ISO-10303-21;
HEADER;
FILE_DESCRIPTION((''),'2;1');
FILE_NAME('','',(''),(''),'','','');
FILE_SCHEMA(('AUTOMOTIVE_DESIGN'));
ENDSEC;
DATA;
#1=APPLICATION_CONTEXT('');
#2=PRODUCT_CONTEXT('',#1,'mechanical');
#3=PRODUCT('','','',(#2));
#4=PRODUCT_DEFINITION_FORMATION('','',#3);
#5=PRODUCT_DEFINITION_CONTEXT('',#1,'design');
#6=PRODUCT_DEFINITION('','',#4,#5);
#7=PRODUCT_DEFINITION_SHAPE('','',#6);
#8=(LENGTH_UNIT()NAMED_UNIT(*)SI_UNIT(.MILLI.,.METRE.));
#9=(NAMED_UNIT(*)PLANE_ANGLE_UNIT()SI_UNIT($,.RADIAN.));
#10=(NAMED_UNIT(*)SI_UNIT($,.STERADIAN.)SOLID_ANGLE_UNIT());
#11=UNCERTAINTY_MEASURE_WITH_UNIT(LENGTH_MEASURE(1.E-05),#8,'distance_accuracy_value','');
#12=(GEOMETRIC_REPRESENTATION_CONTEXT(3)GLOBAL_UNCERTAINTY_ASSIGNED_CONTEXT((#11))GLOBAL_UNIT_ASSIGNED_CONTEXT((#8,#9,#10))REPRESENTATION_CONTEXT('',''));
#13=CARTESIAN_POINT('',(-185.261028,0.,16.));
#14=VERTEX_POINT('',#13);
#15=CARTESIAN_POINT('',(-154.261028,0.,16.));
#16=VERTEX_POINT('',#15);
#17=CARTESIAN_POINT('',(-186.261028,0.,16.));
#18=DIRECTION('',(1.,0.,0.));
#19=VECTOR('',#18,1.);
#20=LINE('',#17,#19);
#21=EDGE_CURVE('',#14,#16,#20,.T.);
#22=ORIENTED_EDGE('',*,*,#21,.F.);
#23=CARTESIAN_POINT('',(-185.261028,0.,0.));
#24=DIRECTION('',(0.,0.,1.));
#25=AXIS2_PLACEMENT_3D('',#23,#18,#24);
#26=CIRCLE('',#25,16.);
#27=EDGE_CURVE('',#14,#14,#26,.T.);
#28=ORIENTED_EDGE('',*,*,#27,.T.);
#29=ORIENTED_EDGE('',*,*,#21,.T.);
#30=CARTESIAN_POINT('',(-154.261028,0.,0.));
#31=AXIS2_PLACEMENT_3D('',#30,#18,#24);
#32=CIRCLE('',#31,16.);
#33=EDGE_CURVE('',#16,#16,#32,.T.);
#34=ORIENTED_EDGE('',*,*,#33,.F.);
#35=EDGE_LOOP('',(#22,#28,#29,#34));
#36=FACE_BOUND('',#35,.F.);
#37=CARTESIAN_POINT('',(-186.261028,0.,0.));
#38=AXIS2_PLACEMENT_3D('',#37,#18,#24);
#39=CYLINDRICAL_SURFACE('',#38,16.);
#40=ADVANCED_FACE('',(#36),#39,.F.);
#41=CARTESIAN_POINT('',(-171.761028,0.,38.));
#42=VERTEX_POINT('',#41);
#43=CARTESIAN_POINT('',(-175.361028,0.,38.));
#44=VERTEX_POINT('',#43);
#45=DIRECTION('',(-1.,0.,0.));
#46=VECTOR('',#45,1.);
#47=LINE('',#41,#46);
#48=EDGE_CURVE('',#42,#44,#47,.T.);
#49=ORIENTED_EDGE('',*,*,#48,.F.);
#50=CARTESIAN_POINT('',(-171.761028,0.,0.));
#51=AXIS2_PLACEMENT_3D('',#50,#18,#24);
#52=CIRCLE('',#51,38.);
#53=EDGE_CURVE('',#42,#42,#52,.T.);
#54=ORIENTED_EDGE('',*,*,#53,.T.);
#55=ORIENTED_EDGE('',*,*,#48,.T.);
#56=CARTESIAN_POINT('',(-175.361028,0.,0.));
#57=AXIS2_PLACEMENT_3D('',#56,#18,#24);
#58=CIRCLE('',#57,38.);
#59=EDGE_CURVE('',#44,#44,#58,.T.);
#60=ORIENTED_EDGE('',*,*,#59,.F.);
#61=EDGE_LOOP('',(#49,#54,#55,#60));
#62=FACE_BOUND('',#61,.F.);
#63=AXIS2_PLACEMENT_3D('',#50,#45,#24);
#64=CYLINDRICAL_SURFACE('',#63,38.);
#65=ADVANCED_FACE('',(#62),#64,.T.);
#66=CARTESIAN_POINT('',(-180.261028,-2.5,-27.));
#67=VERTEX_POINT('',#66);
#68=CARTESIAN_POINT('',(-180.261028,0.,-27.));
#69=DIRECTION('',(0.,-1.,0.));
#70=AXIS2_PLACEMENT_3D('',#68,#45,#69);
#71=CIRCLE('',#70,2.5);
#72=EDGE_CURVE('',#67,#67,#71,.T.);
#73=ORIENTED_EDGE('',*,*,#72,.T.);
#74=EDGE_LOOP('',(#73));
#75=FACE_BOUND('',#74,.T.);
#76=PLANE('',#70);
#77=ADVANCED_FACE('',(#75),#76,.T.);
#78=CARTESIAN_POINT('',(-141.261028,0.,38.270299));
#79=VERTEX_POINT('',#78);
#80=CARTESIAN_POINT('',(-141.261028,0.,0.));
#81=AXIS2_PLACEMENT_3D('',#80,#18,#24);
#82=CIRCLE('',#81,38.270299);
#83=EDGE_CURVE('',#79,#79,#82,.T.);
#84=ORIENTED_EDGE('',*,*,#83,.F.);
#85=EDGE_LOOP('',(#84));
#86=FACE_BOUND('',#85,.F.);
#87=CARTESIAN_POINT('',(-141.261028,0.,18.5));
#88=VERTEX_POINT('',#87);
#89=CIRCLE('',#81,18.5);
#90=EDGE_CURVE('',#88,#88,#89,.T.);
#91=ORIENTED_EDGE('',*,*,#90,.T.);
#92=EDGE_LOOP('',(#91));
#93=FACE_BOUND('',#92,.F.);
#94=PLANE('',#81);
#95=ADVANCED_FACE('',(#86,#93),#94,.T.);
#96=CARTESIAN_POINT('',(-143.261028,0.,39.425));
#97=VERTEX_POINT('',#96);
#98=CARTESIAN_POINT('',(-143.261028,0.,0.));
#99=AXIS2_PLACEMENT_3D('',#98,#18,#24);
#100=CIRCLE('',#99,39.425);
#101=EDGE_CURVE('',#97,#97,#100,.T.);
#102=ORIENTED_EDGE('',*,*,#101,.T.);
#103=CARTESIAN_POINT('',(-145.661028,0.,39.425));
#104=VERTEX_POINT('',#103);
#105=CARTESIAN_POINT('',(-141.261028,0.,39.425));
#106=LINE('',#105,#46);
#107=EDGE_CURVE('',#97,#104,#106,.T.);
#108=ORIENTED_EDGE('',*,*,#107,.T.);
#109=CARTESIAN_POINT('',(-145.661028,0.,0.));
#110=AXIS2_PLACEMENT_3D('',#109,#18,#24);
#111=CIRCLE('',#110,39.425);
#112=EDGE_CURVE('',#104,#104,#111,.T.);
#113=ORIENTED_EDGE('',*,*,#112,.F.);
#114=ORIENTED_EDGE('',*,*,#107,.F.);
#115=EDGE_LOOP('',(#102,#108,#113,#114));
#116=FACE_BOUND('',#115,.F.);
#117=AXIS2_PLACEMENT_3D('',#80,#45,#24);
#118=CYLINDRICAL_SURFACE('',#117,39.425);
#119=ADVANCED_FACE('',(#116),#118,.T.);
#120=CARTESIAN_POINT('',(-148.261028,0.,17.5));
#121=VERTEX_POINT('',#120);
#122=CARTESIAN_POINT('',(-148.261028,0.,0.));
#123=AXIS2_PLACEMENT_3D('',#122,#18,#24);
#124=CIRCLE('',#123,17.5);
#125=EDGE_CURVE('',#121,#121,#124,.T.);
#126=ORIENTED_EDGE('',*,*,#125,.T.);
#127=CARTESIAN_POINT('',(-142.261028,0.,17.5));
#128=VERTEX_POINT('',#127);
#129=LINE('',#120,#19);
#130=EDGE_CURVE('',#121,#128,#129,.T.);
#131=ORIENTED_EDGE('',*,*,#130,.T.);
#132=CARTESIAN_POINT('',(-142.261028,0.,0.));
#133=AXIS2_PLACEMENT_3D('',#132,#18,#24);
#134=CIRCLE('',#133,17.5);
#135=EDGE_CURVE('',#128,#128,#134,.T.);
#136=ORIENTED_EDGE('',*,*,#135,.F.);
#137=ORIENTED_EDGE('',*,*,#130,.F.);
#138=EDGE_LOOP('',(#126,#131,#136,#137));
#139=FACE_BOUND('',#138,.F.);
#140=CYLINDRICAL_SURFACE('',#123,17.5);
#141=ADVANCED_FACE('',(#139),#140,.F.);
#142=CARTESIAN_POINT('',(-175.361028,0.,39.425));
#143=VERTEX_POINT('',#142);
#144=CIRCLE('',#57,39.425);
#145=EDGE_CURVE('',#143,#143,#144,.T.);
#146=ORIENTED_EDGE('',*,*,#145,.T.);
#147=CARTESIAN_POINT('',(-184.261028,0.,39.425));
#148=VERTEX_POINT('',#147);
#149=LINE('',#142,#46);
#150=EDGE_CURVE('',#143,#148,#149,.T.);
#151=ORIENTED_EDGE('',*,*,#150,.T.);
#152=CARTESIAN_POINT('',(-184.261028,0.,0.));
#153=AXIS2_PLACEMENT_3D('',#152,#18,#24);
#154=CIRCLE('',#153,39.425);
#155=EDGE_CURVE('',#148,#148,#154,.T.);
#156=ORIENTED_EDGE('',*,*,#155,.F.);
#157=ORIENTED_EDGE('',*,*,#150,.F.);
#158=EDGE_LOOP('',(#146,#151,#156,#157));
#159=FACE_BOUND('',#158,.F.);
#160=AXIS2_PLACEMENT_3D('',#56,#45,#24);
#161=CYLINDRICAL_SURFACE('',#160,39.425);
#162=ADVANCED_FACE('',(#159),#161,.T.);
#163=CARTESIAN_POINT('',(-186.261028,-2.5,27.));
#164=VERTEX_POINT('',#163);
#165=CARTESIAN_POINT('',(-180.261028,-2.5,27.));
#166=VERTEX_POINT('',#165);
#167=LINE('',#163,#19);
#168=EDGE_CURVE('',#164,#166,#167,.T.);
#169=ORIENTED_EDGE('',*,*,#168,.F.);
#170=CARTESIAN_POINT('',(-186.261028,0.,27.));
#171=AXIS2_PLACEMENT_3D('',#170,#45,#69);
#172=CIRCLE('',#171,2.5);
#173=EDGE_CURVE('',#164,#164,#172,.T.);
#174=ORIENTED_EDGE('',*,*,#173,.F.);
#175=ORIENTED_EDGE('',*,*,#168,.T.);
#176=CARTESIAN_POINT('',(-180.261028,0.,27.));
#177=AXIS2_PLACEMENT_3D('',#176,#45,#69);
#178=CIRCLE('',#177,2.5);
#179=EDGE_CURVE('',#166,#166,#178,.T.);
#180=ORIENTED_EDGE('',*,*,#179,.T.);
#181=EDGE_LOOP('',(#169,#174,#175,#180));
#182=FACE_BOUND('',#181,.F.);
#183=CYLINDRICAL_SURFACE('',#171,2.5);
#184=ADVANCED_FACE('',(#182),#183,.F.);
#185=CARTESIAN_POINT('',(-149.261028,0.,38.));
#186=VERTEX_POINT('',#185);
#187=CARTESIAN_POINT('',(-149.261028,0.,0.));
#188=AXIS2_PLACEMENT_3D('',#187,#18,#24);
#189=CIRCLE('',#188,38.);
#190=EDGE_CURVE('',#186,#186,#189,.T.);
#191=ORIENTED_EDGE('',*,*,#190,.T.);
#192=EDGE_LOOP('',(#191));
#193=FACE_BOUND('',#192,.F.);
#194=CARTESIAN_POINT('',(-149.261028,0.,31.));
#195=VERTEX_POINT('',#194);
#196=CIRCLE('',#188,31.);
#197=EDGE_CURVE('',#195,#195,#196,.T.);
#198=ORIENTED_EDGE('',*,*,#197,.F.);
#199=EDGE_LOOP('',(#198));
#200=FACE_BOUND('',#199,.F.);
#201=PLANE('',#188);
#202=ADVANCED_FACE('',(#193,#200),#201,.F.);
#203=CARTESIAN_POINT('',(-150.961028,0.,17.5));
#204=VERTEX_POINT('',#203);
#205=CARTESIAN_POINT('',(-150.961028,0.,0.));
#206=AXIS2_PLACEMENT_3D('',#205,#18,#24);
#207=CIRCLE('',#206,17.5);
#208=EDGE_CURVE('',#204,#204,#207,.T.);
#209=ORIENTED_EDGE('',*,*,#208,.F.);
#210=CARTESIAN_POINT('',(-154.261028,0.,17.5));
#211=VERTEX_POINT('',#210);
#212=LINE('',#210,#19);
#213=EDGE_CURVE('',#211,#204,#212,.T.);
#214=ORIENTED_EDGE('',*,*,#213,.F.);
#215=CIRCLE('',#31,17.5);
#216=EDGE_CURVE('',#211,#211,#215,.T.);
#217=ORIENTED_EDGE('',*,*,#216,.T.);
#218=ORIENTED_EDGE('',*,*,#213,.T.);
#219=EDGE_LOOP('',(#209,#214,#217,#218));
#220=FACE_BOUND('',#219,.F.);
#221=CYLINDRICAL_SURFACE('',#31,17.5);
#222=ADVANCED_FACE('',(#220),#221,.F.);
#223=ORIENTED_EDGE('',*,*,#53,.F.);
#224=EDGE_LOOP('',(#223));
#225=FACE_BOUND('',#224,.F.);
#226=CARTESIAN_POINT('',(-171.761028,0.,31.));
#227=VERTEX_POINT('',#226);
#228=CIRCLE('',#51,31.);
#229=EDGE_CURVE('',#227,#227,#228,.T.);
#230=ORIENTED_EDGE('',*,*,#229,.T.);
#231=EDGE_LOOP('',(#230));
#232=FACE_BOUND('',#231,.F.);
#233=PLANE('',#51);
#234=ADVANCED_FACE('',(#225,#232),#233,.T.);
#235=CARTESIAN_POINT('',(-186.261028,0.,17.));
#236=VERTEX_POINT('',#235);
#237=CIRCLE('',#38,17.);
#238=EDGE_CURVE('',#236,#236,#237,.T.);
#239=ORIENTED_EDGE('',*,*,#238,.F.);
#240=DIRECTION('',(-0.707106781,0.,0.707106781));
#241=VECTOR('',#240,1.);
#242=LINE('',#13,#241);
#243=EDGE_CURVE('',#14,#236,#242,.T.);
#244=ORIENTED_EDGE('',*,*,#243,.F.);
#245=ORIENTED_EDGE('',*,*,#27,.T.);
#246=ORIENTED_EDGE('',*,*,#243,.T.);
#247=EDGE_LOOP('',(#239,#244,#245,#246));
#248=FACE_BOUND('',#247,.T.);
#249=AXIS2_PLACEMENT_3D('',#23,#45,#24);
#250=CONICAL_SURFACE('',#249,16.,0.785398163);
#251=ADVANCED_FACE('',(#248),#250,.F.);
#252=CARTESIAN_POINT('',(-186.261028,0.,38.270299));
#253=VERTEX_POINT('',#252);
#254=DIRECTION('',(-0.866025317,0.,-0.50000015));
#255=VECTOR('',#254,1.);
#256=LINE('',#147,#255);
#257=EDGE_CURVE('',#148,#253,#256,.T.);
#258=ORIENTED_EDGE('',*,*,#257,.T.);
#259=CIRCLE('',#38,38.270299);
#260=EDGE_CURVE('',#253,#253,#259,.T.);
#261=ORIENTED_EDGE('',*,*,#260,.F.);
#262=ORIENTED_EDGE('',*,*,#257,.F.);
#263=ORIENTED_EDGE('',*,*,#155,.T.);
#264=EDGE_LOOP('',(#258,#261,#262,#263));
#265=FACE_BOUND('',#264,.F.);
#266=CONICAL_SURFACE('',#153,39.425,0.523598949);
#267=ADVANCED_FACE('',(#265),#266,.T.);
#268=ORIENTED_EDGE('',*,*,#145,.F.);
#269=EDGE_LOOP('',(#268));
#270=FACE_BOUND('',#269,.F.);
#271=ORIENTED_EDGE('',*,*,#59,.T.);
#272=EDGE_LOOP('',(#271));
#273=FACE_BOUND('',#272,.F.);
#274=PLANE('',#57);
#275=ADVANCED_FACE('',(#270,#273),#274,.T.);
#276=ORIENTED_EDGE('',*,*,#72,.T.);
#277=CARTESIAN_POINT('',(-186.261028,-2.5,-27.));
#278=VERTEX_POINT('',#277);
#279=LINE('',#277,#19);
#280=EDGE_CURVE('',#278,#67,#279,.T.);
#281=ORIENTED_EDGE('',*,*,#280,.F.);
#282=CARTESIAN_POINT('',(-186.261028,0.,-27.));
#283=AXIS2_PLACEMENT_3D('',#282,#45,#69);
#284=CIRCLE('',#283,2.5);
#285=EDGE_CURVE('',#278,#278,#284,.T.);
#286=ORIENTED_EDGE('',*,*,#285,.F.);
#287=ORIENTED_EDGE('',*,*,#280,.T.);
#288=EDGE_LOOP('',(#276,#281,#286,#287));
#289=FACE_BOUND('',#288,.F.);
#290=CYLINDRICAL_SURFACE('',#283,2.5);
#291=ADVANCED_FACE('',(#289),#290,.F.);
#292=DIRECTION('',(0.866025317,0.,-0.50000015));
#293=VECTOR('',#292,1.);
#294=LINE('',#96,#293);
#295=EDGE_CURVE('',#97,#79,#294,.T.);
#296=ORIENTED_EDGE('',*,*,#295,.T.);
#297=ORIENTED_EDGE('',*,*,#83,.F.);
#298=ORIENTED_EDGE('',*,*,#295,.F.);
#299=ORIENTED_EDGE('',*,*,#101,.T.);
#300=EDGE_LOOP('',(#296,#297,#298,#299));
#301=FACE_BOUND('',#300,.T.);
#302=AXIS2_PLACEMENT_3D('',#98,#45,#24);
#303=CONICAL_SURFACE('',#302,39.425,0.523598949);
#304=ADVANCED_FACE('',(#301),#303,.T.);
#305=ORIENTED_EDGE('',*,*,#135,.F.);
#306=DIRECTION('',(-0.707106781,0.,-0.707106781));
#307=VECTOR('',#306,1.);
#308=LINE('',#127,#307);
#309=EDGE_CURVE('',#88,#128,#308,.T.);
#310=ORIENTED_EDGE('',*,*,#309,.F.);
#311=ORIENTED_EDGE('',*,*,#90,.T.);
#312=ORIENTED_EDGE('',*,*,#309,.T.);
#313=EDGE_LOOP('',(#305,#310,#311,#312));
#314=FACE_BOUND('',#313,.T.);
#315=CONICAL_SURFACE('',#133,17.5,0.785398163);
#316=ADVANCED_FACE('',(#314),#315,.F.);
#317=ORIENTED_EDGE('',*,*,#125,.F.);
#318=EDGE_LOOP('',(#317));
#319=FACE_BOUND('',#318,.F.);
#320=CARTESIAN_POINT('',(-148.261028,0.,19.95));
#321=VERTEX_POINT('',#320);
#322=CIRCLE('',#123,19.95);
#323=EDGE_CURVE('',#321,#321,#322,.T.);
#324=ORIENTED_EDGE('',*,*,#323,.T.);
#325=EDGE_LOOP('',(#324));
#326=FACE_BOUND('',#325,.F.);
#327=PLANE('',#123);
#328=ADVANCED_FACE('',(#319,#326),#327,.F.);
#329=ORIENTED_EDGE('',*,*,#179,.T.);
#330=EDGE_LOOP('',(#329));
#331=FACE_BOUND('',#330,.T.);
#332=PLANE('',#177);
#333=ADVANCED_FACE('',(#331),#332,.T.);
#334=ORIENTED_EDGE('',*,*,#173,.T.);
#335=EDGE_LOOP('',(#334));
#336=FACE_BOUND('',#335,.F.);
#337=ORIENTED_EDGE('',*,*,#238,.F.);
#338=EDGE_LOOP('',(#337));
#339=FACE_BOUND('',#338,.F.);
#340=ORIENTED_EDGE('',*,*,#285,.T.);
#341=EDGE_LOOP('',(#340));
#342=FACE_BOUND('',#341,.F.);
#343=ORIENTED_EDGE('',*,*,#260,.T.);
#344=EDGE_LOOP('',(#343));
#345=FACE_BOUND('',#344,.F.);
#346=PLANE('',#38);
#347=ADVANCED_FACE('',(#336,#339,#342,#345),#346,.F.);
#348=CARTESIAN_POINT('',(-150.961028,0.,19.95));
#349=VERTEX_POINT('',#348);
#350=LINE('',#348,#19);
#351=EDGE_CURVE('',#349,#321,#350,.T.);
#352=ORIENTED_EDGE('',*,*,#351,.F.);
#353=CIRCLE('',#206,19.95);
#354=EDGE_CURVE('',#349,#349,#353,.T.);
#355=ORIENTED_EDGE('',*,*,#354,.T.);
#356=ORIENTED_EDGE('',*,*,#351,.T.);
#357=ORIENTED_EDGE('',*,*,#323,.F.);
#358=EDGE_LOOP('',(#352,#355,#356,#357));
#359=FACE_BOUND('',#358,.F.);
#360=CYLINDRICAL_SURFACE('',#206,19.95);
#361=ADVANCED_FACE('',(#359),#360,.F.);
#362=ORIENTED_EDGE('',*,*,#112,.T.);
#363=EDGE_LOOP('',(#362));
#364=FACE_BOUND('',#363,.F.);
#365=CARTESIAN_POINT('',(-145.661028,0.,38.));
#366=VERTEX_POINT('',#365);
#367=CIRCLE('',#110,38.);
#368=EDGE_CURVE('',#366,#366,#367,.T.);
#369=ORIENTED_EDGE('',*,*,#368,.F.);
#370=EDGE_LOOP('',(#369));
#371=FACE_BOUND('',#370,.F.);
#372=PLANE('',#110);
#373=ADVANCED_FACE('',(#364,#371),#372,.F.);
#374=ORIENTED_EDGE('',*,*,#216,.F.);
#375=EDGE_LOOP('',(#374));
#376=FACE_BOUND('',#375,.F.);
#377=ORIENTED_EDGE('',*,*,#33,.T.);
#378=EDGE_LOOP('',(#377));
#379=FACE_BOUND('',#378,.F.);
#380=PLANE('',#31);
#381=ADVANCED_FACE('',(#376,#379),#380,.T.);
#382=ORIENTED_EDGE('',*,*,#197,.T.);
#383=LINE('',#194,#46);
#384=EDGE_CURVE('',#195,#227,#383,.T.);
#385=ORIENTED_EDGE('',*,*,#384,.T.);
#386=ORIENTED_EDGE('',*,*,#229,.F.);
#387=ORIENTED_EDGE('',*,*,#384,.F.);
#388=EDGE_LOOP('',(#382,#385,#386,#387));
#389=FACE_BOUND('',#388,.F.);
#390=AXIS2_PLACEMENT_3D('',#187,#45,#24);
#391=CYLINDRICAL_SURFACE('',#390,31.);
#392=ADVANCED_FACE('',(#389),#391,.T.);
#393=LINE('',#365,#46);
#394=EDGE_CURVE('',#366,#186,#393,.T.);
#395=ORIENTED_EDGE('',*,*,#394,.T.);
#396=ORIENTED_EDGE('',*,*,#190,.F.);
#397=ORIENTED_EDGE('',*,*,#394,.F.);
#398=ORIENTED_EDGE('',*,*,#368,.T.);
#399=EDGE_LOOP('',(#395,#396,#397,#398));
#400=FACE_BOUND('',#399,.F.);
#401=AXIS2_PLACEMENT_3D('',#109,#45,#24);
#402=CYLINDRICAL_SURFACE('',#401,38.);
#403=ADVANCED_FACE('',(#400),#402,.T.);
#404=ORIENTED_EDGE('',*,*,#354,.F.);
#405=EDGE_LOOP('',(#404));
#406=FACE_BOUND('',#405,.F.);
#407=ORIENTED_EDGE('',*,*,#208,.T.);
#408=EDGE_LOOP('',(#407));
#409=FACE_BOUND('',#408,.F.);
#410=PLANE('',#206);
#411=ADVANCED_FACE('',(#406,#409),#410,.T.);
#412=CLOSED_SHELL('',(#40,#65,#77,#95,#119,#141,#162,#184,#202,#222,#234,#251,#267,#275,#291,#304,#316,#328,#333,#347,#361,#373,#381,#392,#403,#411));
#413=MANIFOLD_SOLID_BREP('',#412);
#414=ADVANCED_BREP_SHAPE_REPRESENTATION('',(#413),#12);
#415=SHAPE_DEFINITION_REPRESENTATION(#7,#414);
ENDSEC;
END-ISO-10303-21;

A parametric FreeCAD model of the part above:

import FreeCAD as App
import Part
import Sketcher
Q = App.Units.Quantity


def edges_at(feature, points):
    """Names of the edges that pass closest to the given points."""
    edges = feature.Shape.Edges
    near = lambda p: min(range(len(edges)), key=lambda i: edges[i].distToShape(Part.Vertex(*p))[0])
    return sorted({f"Edge{near(p) + 1}" for p in points})

doc = App.newDocument("Part")
body = doc.addObject("PartDesign::Body", "Body")

# Sketch on XZ plane
sketch1 = body.newObject("Sketcher::SketchObject", "Sketch")
sketch1.AttachmentSupport = (doc.getObject("XZ_Plane"), [""])
sketch1.MapMode = "FlatFace"
sketch1.addGeometry([
    Part.LineSegment(App.Vector(-148.3, 17.5, 0), App.Vector(-141.3, 17.5, 0)),  # 0
    Part.LineSegment(App.Vector(-141.3, 17.5, 0), App.Vector(-141.3, 39.4, 0)),  # 1
    Part.LineSegment(App.Vector(-141.3, 39.4, 0), App.Vector(-145.7, 39.4, 0)),  # 2
    Part.LineSegment(App.Vector(-145.7, 39.4, 0), App.Vector(-145.7, 38, 0)),  # 3
    Part.LineSegment(App.Vector(-145.7, 38, 0), App.Vector(-149.3, 38, 0)),  # 4
    Part.LineSegment(App.Vector(-149.3, 38, 0), App.Vector(-149.3, 31, 0)),  # 5
    Part.LineSegment(App.Vector(-149.3, 31, 0), App.Vector(-171.8, 31, 0)),  # 6
    Part.LineSegment(App.Vector(-171.8, 31, 0), App.Vector(-171.8, 38, 0)),  # 7
    Part.LineSegment(App.Vector(-171.8, 38, 0), App.Vector(-175.4, 38, 0)),  # 8
    Part.LineSegment(App.Vector(-175.4, 38, 0), App.Vector(-175.4, 39.4, 0)),  # 9
    Part.LineSegment(App.Vector(-175.4, 39.4, 0), App.Vector(-186.3, 39.4, 0)),  # 10
    Part.LineSegment(App.Vector(-186.3, 39.4, 0), App.Vector(-186.3, 16, 0)),  # 11
    Part.LineSegment(App.Vector(-186.3, 16, 0), App.Vector(-154.3, 16, 0)),  # 12
    Part.LineSegment(App.Vector(-154.3, 16, 0), App.Vector(-154.3, 17.5, 0)),  # 13
    Part.LineSegment(App.Vector(-154.3, 17.5, 0), App.Vector(-151, 17.5, 0)),  # 14
    Part.LineSegment(App.Vector(-151, 17.5, 0), App.Vector(-151, 19.9, 0)),  # 15
    Part.LineSegment(App.Vector(-151, 19.9, 0), App.Vector(-148.3, 19.9, 0)),  # 16
    Part.LineSegment(App.Vector(-148.3, 19.9, 0), App.Vector(-148.3, 17.5, 0)),  # 17
], False)
sketch1.addConstraint([
    Sketcher.Constraint("Coincident", 0, 2, 1, 1),
    Sketcher.Constraint("Coincident", 1, 2, 2, 1),
    Sketcher.Constraint("Coincident", 2, 2, 3, 1),
    Sketcher.Constraint("Coincident", 3, 2, 4, 1),
    Sketcher.Constraint("Coincident", 4, 2, 5, 1),
    Sketcher.Constraint("Coincident", 5, 2, 6, 1),
    Sketcher.Constraint("Coincident", 6, 2, 7, 1),
    Sketcher.Constraint("Coincident", 7, 2, 8, 1),
    Sketcher.Constraint("Coincident", 8, 2, 9, 1),
    Sketcher.Constraint("Coincident", 9, 2, 10, 1),
    Sketcher.Constraint("Coincident", 10, 2, 11, 1),
    Sketcher.Constraint("Coincident", 11, 2, 12, 1),
    Sketcher.Constraint("Coincident", 12, 2, 13, 1),
    Sketcher.Constraint("Coincident", 13, 2, 14, 1),
    Sketcher.Constraint("Coincident", 14, 2, 15, 1),
    Sketcher.Constraint("Coincident", 15, 2, 16, 1),
    Sketcher.Constraint("Coincident", 16, 2, 17, 1),
    Sketcher.Constraint("Coincident", 17, 2, 0, 1),
    Sketcher.Constraint("Horizontal", 0),
    Sketcher.Constraint("Vertical", 1),
    Sketcher.Constraint("Horizontal", 2),
    Sketcher.Constraint("Vertical", 3),
    Sketcher.Constraint("Horizontal", 4),
    Sketcher.Constraint("Vertical", 5),
    Sketcher.Constraint("Horizontal", 6),
    Sketcher.Constraint("Vertical", 7),
    Sketcher.Constraint("Horizontal", 8),
    Sketcher.Constraint("Vertical", 9),
    Sketcher.Constraint("Horizontal", 10),
    Sketcher.Constraint("Vertical", 11),
    Sketcher.Constraint("Horizontal", 12),
    Sketcher.Constraint("Vertical", 13),
    Sketcher.Constraint("Horizontal", 14),
    Sketcher.Constraint("Vertical", 15),
    Sketcher.Constraint("Horizontal", 16),
    Sketcher.Constraint("Vertical", 17),
    Sketcher.Constraint("Horizontal", 4, 2, 7, 2),
    Sketcher.Constraint("Horizontal", 2, 2, 9, 2),
    Sketcher.Constraint("Horizontal", 0, 2, 13, 2),
    Sketcher.Constraint("Equal", 4, 8),
    Sketcher.Constraint("Equal", 0, 5),
    Sketcher.Constraint("DistanceX", 0, 1, 0, 2, Q("7 mm")),
    Sketcher.Constraint("DistanceX", 12, 1, 12, 2, Q("32 mm")),
    Sketcher.Constraint("DistanceX", 2, 2, 2, 1, Q("4.4 mm")),
    Sketcher.Constraint("DistanceX", 4, 2, 4, 1, Q("3.6 mm")),
    Sketcher.Constraint("DistanceX", 6, 2, 6, 1, Q("22.5 mm")),
    Sketcher.Constraint("DistanceX", 10, 2, 10, 1, Q("10.9 mm")),
    Sketcher.Constraint("DistanceX", 14, 1, 14, 2, Q("3.3 mm")),
    Sketcher.Constraint("DistanceY", 13, 1, 13, 2, Q("1.5 mm")),
    Sketcher.Constraint("DistanceY", -1, 1, 3, 2, Q("38 mm")),
    Sketcher.Constraint("DistanceY", -1, 1, 11, 2, Q("16 mm")),
    Sketcher.Constraint("DistanceY", 15, 1, 15, 2, Q("2.45 mm")),
    Sketcher.Constraint("DistanceY", 1, 1, 1, 2, Q("21.925 mm")),
    Sketcher.Constraint("DistanceX", 0, 2, -1, 1, Q("141.261028 mm")),
])
revolution = body.newObject("PartDesign::Revolution", "Revolution")
revolution.Profile = sketch1
revolution.ReferenceAxis = (sketch1, ["H_Axis"])
revolution.Angle = 360
doc.recompute()

chamfer = body.newObject("PartDesign::Chamfer", "Chamfer")
chamfer.Base = (revolution, edges_at(revolution, [(-186.261, 0, -39.425)]))
chamfer.ChamferType = "Two distances"
chamfer.Size = 2
chamfer.Size2 = 1.154701

# Sketch on YZ plane
sketch2 = body.newObject("Sketcher::SketchObject", "Sketch001")
sketch2.AttachmentSupport = (doc.getObject("YZ_Plane"), [""])
sketch2.MapMode = "FlatFace"
sketch2.AttachmentOffset = App.Placement(App.Vector(0, 0, -186.261028), App.Rotation())
sketch2.addGeometry([
    Part.Circle(App.Vector(0, 27, 0), App.Vector(0, 0, 1), 2.5),
    Part.Circle(App.Vector(0, -27, 0), App.Vector(0, 0, 1), 2.5),
], False)
sketch2.addConstraint([
    Sketcher.Constraint("Equal", 0, 1),
    Sketcher.Constraint("Symmetric", 0, 3, 1, 3, -1, 1),
    Sketcher.Constraint("PointOnObject", 0, 3, -2),
    Sketcher.Constraint("Diameter", 0, Q("5 mm")),
    Sketcher.Constraint("DistanceY", -1, 1, 0, 3, Q("27 mm")),
])
pocket1 = body.newObject("PartDesign::Pocket", "Pocket")
pocket1.Profile = sketch2
pocket1.Length = 6
pocket1.Reversed = True
doc.recompute()

chamfer2 = body.newObject("PartDesign::Chamfer", "Chamfer001")
chamfer2.Base = (pocket1, edges_at(pocket1, [(-141.261, 0, -39.425)]))
chamfer2.ChamferType = "Two distances"
chamfer2.Size = 2
chamfer2.Size2 = 1.154701
doc.recompute()

chamfer3 = body.newObject("PartDesign::Chamfer", "Chamfer002")
chamfer3.Base = (chamfer2, edges_at(chamfer2, [(-186.261, 0, -16), (-141.261, 0, -17.5)]))
chamfer3.Size = 1

doc.recompute()
